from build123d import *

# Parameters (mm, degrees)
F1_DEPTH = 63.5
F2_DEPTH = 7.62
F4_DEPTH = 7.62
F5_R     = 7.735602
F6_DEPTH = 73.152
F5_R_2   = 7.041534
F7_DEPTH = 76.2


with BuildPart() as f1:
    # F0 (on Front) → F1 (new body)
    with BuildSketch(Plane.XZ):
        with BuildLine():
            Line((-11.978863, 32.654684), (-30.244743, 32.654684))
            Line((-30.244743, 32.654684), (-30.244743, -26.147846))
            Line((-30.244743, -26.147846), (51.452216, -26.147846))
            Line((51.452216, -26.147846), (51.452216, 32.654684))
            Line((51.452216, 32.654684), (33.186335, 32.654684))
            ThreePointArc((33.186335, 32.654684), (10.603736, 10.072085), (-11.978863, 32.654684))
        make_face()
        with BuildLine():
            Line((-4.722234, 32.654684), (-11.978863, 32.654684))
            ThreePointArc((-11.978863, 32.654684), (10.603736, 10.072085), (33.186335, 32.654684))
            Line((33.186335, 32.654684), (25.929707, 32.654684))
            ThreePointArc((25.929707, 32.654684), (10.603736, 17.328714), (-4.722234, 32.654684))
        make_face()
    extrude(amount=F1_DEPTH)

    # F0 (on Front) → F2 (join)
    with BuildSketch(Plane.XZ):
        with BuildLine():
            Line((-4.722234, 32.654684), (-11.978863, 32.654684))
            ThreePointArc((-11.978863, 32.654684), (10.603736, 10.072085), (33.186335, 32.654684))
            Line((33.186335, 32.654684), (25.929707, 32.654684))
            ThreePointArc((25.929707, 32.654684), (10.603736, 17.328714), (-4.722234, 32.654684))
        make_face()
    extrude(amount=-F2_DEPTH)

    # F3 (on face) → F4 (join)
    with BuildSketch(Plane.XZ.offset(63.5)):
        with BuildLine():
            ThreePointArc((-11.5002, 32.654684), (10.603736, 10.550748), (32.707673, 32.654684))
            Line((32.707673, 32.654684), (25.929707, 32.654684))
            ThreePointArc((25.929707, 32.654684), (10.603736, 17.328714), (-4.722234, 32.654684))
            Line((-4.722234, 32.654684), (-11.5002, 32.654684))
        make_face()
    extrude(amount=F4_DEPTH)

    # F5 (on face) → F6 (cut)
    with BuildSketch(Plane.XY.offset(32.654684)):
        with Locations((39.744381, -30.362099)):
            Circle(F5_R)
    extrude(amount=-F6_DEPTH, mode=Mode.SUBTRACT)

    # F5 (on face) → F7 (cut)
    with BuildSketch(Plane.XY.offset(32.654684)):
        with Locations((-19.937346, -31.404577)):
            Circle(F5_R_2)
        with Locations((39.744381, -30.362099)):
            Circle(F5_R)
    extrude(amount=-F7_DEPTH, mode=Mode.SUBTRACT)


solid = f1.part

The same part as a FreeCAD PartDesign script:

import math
import FreeCAD as App
import Part
import Sketcher
Q = App.Units.Quantity

doc = App.newDocument("Part")
body = doc.addObject("PartDesign::Body", "Body")

sketch1 = body.newObject("Sketcher::SketchObject", "Sketch")
sketch1.AttachmentSupport = (doc.getObject("XZ_Plane"), [""])
sketch1.MapMode = "FlatFace"
sketch1.addGeometry(Part.LineSegment(App.Vector(-30, 33, 0), App.Vector(-30, -26, 0)), False)
sketch1.addGeometry(Part.LineSegment(App.Vector(-30, -26, 0), App.Vector(51, -26, 0)), False)
sketch1.addGeometry(Part.LineSegment(App.Vector(51, -26, 0), App.Vector(51, 33, 0)), False)
sketch1.addGeometry(Part.LineSegment(App.Vector(51, 33, 0), App.Vector(26, 33, 0)), False)
sketch1.addGeometry(Part.ArcOfCircle(Part.Circle(App.Vector(11, 33, 0), App.Vector(0, 0, 1), 15), math.radians(-180), math.radians(0)), False)
sketch1.addGeometry(Part.LineSegment(App.Vector(-5, 33, 0), App.Vector(-30, 33, 0)), False)
sketch1.addConstraint(Sketcher.Constraint("Coincident", 0, 2, 1, 1))
sketch1.addConstraint(Sketcher.Constraint("Coincident", 1, 2, 2, 1))
sketch1.addConstraint(Sketcher.Constraint("Coincident", 2, 2, 3, 1))
sketch1.addConstraint(Sketcher.Constraint("Coincident", 3, 2, 4, 2))
sketch1.addConstraint(Sketcher.Constraint("Coincident", 4, 1, 5, 1))
sketch1.addConstraint(Sketcher.Constraint("Coincident", 5, 2, 0, 1))
sketch1.addConstraint(Sketcher.Constraint("Vertical", 0))
sketch1.addConstraint(Sketcher.Constraint("Horizontal", 1))
sketch1.addConstraint(Sketcher.Constraint("Vertical", 2))
sketch1.addConstraint(Sketcher.Constraint("Horizontal", 3))
sketch1.addConstraint(Sketcher.Constraint("Horizontal", 5))
sketch1.addConstraint(Sketcher.Constraint("Horizontal", 4, 3, 2, 2))
sketch1.addConstraint(Sketcher.Constraint("Horizontal", 3, 2, 4, 1))
sketch1.addConstraint(Sketcher.Constraint("Equal", 3, 5))
sketch1.addConstraint(Sketcher.Constraint("Radius", 4, 15.325971))
sketch1.addConstraint(Sketcher.Constraint("DistanceX", 1, 1, 1, 2, 81.696959))
sketch1.addConstraint(Sketcher.Constraint("DistanceY", 0, 2, 0, 1, 58.80253))
sketch1.addConstraint(Sketcher.Constraint("DistanceX", -1, 1, 4, 3, 10.603737))
sketch1.addConstraint(Sketcher.Constraint("DistanceY", -1, 1, 4, 3, 32.654685))
pad1 = body.newObject("PartDesign::Pad", "Pad")
pad1.Profile = sketch1
pad1.Length = Q("2.5 in")

sketch2 = body.newObject("Sketcher::SketchObject", "Sketch001")
sketch2.AttachmentSupport = (doc.getObject("XZ_Plane"), [""])
sketch2.MapMode = "FlatFace"
sketch2.addGeometry(Part.LineSegment(App.Vector(-5, 33, 0), App.Vector(-12, 33, 0)), False)
sketch2.addGeometry(Part.ArcOfCircle(Part.Circle(App.Vector(11, 33, 0), App.Vector(0, 0, 1), 23), math.radians(180), math.radians(360)), False)
sketch2.addGeometry(Part.LineSegment(App.Vector(33, 33, 0), App.Vector(26, 33, 0)), False)
sketch2.addGeometry(Part.ArcOfCircle(Part.Circle(App.Vector(11, 33, 0), App.Vector(0, 0, 1), 15), math.radians(-180), math.radians(0)), False)
sketch2.addConstraint(Sketcher.Constraint("Coincident", 0, 2, 1, 1))
sketch2.addConstraint(Sketcher.Constraint("Coincident", 1, 2, 2, 1))
sketch2.addConstraint(Sketcher.Constraint("Coincident", 2, 2, 3, 2))
sketch2.addConstraint(Sketcher.Constraint("Coincident", 3, 1, 0, 1))
sketch2.addConstraint(Sketcher.Constraint("Horizontal", 0))
sketch2.addConstraint(Sketcher.Constraint("Horizontal", 2))
sketch2.addConstraint(Sketcher.Constraint("Coincident", 3, 3, 1, 3))
sketch2.addConstraint(Sketcher.Constraint("Horizontal", 3, 3, 0, 2))
sketch2.addConstraint(Sketcher.Constraint("Horizontal", 0, 2, 1, 2))
sketch2.addConstraint(Sketcher.Constraint("Radius", 1, 22.582599))
sketch2.addConstraint(Sketcher.Constraint("Radius", 3, 15.325971))
sketch2.addConstraint(Sketcher.Constraint("DistanceX", -1, 1, 1, 3, 10.603736))
sketch2.addConstraint(Sketcher.Constraint("DistanceY", -1, 1, 1, 3, 32.654684))
pad2 = body.newObject("PartDesign::Pad", "Pad001")
pad2.Profile = sketch2
pad2.Length = Q("0.3 in")
pad2.Reversed = True

sketch3 = body.newObject("Sketcher::SketchObject", "Sketch002")
sketch3.AttachmentSupport = (doc.getObject("XZ_Plane"), [""])
sketch3.MapMode = "FlatFace"
sketch3.AttachmentOffset = App.Placement(App.Vector(0, 0, 2.5 * 25.4), App.Rotation())
sketch3.addGeometry(Part.ArcOfCircle(Part.Circle(App.Vector(11, 33, 0), App.Vector(0, 0, 1), 22), math.radians(-180), math.radians(0)), False)
sketch3.addGeometry(Part.LineSegment(App.Vector(33, 33, 0), App.Vector(26, 33, 0)), False)
sketch3.addGeometry(Part.ArcOfCircle(Part.Circle(App.Vector(11, 33, 0), App.Vector(0, 0, 1), 15), math.radians(-180), math.radians(0)), False)
sketch3.addGeometry(Part.LineSegment(App.Vector(-5, 33, 0), App.Vector(-12, 33, 0)), False)
sketch3.addConstraint(Sketcher.Constraint("Coincident", 0, 2, 1, 1))
sketch3.addConstraint(Sketcher.Constraint("Coincident", 1, 2, 2, 2))
sketch3.addConstraint(Sketcher.Constraint("Coincident", 2, 1, 3, 1))
sketch3.addConstraint(Sketcher.Constraint("Coincident", 3, 2, 0, 1))
sketch3.addConstraint(Sketcher.Constraint("Horizontal", 1))
sketch3.addConstraint(Sketcher.Constraint("Horizontal", 3))
sketch3.addConstraint(Sketcher.Constraint("Coincident", 2, 3, 0, 3))
sketch3.addConstraint(Sketcher.Constraint("Horizontal", 2, 3, 0, 2))
sketch3.addConstraint(Sketcher.Constraint("Horizontal", 1, 2, 2, 1))
sketch3.addConstraint(Sketcher.Constraint("Radius", 2, 15.325971))
sketch3.addConstraint(Sketcher.Constraint("Radius", 0, 22.103936))
sketch3.addConstraint(Sketcher.Constraint("DistanceX", 3, 2, -1, 1, 11.5002))
sketch3.addConstraint(Sketcher.Constraint("DistanceY", -1, 1, 0, 3, 32.654685))
pad3 = body.newObject("PartDesign::Pad", "Pad002")
pad3.Profile = sketch3
pad3.Length = Q("0.3 in")

sketch4 = body.newObject("Sketcher::SketchObject", "Sketch003")
sketch4.AttachmentSupport = (doc.getObject("XY_Plane"), [""])
sketch4.MapMode = "FlatFace"
sketch4.AttachmentOffset = App.Placement(App.Vector(0, 0, 32.654684), App.Rotation())
sketch4.addGeometry(Part.Circle(App.Vector(40, -30, 0), App.Vector(0, 0, 1), 8), False)
sketch4.addConstraint(Sketcher.Constraint("Diameter", 0, 15.471204))
sketch4.addConstraint(Sketcher.Constraint("DistanceY", 0, 3, -1, 1, 30.362099))
sketch4.addConstraint(Sketcher.Constraint("DistanceX", -1, 1, 0, 3, 39.744381))
pocket1 = body.newObject("PartDesign::Pocket", "Pocket")
pocket1.Profile = sketch4
pocket1.Length = Q("2.88 in")

sketch5 = body.newObject("Sketcher::SketchObject", "Sketch004")
sketch5.AttachmentSupport = (doc.getObject("XY_Plane"), [""])
sketch5.MapMode = "FlatFace"
sketch5.AttachmentOffset = App.Placement(App.Vector(0, 0, 32.654684), App.Rotation())
sketch5.addGeometry(Part.Circle(App.Vector(-20, -31, 0), App.Vector(0, 0, 1), 7), False)
sketch5.addGeometry(Part.Circle(App.Vector(40, -30, 0), App.Vector(0, 0, 1), 8), False)
sketch5.addConstraint(Sketcher.Constraint("Diameter", 0, 14.083068))
sketch5.addConstraint(Sketcher.Constraint("Diameter", 1, 15.471204))
sketch5.addConstraint(Sketcher.Constraint("DistanceY", 1, 3, -1, 1, 30.362099))
sketch5.addConstraint(Sketcher.Constraint("DistanceX", -1, 1, 1, 3, 39.744381))
sketch5.addConstraint(Sketcher.Constraint("DistanceX", 0, 3, -1, 1, 19.937346))
sketch5.addConstraint(Sketcher.Constraint("DistanceY", 0, 3, -1, 1, 31.404577))
pocket2 = body.newObject("PartDesign::Pocket", "Pocket001")
pocket2.Profile = sketch5
pocket2.Length = Q("3 in")

doc.recompute()
